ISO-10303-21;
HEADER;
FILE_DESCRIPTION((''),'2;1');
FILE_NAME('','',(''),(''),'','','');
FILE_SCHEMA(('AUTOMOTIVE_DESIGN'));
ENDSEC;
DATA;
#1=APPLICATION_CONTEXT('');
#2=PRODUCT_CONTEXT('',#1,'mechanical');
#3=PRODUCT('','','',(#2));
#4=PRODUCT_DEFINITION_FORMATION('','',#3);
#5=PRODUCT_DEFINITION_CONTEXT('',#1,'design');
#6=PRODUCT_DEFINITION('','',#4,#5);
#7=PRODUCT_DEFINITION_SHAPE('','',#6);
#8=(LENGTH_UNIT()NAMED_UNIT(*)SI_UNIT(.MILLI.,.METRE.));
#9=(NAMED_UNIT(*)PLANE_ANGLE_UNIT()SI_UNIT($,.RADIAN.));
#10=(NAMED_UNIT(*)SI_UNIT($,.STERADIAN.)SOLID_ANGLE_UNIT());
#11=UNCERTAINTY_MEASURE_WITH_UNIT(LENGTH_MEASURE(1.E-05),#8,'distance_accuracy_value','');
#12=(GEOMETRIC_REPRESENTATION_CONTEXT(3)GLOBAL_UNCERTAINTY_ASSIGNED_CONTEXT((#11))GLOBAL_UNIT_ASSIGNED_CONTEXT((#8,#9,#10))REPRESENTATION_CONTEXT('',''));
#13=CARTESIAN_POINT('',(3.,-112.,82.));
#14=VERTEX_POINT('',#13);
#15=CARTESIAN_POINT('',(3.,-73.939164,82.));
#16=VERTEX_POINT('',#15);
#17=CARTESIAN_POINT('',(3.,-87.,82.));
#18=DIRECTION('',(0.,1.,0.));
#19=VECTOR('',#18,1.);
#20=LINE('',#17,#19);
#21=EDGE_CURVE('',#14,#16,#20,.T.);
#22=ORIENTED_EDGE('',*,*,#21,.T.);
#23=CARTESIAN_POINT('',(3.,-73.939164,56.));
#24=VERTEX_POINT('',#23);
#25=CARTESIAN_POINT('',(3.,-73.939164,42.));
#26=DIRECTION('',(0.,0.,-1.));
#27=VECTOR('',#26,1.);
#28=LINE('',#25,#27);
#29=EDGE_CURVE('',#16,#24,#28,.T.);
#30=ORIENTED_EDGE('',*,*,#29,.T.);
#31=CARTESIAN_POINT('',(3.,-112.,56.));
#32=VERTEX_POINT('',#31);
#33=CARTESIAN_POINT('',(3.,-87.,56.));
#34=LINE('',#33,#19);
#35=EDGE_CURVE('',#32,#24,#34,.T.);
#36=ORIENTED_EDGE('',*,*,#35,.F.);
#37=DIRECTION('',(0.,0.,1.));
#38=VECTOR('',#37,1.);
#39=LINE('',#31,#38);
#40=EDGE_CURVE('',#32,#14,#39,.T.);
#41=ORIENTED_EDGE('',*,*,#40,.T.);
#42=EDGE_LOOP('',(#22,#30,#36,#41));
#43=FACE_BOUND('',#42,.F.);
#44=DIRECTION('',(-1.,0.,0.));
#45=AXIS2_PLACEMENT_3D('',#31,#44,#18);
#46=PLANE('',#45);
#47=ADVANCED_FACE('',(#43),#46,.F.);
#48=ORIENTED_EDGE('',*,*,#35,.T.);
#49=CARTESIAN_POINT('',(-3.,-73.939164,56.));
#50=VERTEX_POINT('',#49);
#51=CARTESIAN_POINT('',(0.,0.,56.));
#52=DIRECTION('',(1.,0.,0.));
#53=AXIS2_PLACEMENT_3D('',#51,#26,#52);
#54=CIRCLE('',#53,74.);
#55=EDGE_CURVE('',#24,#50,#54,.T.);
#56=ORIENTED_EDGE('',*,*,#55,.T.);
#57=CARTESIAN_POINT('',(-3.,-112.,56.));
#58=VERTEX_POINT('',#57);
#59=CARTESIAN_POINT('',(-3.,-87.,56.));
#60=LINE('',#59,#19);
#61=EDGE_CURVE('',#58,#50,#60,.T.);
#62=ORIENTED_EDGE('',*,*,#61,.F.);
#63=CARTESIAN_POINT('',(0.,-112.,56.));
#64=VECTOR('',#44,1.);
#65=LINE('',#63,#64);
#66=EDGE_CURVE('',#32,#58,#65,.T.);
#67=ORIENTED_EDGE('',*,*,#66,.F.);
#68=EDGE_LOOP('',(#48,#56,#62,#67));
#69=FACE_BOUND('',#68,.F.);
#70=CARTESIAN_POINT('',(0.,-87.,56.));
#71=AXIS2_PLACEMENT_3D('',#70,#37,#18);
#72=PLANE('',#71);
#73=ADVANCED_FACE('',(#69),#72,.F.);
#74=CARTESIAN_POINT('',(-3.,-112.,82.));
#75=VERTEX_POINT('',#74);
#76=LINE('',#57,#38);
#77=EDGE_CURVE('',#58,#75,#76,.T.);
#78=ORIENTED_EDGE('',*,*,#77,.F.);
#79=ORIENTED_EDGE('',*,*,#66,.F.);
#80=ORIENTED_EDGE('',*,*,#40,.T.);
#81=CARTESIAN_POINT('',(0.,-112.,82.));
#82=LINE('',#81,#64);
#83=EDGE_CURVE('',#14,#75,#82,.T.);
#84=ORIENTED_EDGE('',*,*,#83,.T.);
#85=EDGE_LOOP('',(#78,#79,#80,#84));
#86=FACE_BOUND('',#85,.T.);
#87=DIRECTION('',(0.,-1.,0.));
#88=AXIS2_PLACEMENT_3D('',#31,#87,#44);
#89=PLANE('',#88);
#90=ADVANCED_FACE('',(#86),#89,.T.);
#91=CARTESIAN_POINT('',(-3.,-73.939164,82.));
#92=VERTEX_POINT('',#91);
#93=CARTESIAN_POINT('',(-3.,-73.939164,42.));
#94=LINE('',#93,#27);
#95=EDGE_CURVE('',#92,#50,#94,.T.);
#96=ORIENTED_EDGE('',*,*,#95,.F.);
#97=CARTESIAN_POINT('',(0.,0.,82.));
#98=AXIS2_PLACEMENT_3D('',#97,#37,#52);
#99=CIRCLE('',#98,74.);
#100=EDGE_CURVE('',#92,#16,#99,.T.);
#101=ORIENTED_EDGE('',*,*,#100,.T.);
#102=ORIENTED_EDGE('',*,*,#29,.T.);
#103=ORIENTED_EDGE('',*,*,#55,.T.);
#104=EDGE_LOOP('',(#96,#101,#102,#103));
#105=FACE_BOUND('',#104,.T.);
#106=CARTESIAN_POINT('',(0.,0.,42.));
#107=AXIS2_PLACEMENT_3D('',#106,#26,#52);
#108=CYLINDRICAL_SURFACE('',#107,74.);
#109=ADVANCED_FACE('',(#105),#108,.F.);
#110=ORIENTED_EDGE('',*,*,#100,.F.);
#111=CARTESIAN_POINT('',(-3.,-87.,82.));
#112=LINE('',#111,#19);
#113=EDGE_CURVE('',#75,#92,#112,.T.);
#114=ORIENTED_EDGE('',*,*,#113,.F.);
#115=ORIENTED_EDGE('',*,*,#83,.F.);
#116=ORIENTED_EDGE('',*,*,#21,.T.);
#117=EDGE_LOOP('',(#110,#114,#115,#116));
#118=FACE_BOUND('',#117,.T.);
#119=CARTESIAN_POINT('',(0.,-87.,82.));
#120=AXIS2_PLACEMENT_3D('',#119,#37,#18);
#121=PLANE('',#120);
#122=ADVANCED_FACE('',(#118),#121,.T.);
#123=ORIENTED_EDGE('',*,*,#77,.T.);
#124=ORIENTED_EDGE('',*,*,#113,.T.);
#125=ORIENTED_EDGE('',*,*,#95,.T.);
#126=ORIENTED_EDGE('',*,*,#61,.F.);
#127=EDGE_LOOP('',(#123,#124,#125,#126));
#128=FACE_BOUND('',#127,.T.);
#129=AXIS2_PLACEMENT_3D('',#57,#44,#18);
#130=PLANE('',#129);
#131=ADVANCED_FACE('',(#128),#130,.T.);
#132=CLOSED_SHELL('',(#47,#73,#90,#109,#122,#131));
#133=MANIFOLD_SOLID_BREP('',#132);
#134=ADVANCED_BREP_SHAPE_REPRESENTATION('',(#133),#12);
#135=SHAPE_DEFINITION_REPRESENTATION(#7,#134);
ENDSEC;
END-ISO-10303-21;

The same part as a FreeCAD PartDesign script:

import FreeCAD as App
import Part
import Sketcher
Q = App.Units.Quantity


def add_polygon(sketch, points):
    """Adds a closed chain of lines whose ends are joined by coincident constraints."""
    first, n = sketch.GeometryCount, len(points)
    for a, b in zip(points, points[1:] + points[:1]):
        sketch.addGeometry(Part.LineSegment(App.Vector(*a, 0), App.Vector(*b, 0)), False)
    for i in range(n):
        sketch.addConstraint(Sketcher.Constraint("Coincident", first + i, 2, first + (i + 1) % n, 1))

doc = App.newDocument("Part")
body = doc.addObject("PartDesign::Body", "Body")

# Sketch on XY plane
sketch1 = body.newObject("Sketcher::SketchObject", "Sketch")
sketch1.AttachmentSupport = (doc.getObject("XY_Plane"), [""])
sketch1.MapMode = "FlatFace"
sketch1.AttachmentOffset = App.Placement(App.Vector(0, 0, 42), App.Rotation())
sketch1.addGeometry(Part.Circle(App.Vector(0, 0, 0), App.Vector(0, 0, 1), 74), False)
sketch1.addConstraint([
    Sketcher.Constraint("Coincident", 0, 3, -1, 1),
    Sketcher.Constraint("Diameter", 0, Q("148 mm")),
])
pad1 = body.newObject("PartDesign::Pad", "Pad")
pad1.Profile = sketch1
pad1.Length = 40
body2 = doc.addObject("PartDesign::Body", "Body001")

# Sketch on XY plane
sketch2 = body2.newObject("Sketcher::SketchObject", "Sketch001")
sketch2.AttachmentSupport = (doc.getObject("XY_Plane001"), [""])
sketch2.MapMode = "FlatFace"
sketch2.AttachmentOffset = App.Placement(App.Vector(0, 0, 56), App.Rotation())
add_polygon(sketch2, [(-3, -112), (3, -112), (3, -62), (-3, -62)])  # lines 0-3
sketch2.addConstraint([
    Sketcher.Constraint("Horizontal", 0),
    Sketcher.Constraint("Vertical", 1),
    Sketcher.Constraint("Horizontal", 2),
    Sketcher.Constraint("Vertical", 3),
    Sketcher.Constraint("DistanceX", 0, 1, 0, 2, Q("6 mm")),
    Sketcher.Constraint("DistanceY", 1, 1, 1, 2, Q("50 mm")),
    Sketcher.Constraint("DistanceX", -1, 1, 0, 2, Q("3 mm")),
    Sketcher.Constraint("DistanceY", 0, 2, -1, 1, Q("112 mm")),
])
pad2 = body2.newObject("PartDesign::Pad", "Pad001")
pad2.Profile = sketch2
pad2.Length = 26
doc.recompute()

boolean = body2.newObject("PartDesign::Boolean", "Boolean")
boolean.Type = "Cut"
boolean.addObjects([body])

doc.recompute()
